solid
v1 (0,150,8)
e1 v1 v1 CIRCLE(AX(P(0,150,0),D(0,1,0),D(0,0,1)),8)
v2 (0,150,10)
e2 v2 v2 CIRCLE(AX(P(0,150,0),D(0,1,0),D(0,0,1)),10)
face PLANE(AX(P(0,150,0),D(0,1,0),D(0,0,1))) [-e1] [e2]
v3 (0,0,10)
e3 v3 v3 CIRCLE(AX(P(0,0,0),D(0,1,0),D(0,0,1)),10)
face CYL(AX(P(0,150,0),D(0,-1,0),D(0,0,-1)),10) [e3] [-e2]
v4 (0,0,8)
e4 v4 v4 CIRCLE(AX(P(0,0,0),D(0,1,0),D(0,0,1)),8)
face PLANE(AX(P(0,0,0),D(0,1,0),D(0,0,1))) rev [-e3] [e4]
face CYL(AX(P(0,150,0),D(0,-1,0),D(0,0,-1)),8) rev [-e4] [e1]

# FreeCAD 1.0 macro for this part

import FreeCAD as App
import Part
import Sketcher

V = App.Vector
Q = App.Units.Quantity

doc = App.newDocument("Part")
body = doc.addObject("PartDesign::Body", "Body")

sketch1 = body.newObject("Sketcher::SketchObject", "Sketch")
sketch1.AttachmentSupport = (doc.getObject("XZ_Plane"), [""])
sketch1.MapMode = "FlatFace"
sketch1.addGeometry([
    Part.Circle(V(0, 0, 0), V(0, 0, 1), 10),
    Part.Circle(V(0, 0, 0), V(0, 0, 1), 8),
], False)
sketch1.addConstraint([
    Sketcher.Constraint("Coincident", 0, 3, -1, 1),
    Sketcher.Constraint("Coincident", 1, 3, -1, 1),
    Sketcher.Constraint("Diameter", 0, Q("20 mm")),
    Sketcher.Constraint("Diameter", 1, Q("16 mm")),
])
pad1 = body.newObject("PartDesign::Pad", "Pad")
pad1.Profile = sketch1
pad1.Length = 150
pad1.Reversed = True

doc.recompute()
